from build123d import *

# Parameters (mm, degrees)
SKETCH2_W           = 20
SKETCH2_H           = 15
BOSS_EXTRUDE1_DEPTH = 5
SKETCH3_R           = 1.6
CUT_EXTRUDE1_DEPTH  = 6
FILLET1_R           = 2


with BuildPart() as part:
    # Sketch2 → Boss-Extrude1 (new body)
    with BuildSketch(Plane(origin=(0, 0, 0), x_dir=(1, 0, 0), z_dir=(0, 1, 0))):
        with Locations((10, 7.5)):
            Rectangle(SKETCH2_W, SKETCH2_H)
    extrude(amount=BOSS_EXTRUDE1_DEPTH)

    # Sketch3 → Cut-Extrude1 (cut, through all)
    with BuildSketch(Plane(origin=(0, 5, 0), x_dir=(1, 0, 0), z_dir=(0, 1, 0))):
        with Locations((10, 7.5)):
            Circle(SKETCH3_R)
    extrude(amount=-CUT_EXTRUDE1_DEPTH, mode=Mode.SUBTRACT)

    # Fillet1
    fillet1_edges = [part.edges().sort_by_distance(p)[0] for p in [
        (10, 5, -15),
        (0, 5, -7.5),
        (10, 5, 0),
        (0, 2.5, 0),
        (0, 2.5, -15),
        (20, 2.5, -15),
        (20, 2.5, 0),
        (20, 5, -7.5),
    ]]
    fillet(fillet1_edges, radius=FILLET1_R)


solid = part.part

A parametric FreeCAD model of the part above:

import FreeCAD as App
import Part
import Sketcher


def edges_at(feature, points):
    """Names of the edges that pass closest to the given points."""
    edges = feature.Shape.Edges
    near = lambda p: min(range(len(edges)), key=lambda i: edges[i].distToShape(Part.Vertex(*p))[0])
    return sorted({f"Edge{near(p) + 1}" for p in points})


def add_polygon(sketch, points):
    """Adds a closed chain of lines whose ends are joined by coincident constraints."""
    first, n = sketch.GeometryCount, len(points)
    for a, b in zip(points, points[1:] + points[:1]):
        sketch.addGeometry(Part.LineSegment(App.Vector(*a, 0), App.Vector(*b, 0)), False)
    for i in range(n):
        sketch.addConstraint(Sketcher.Constraint("Coincident", first + i, 2, first + (i + 1) % n, 1))

doc = App.newDocument("Part")
body = doc.addObject("PartDesign::Body", "Body")

# Sketch on XZ plane
sketch1 = body.newObject("Sketcher::SketchObject", "Sketch")
sketch1.AttachmentSupport = (doc.getObject("XZ_Plane"), [""])
sketch1.MapMode = "FlatFace"
add_polygon(sketch1, [(0, -15), (0, 0), (20, 0), (20, -15)])  # lines 0-3
sketch1.addConstraint([
    Sketcher.Constraint("Vertical", 0),
    Sketcher.Constraint("Horizontal", 1),
    Sketcher.Constraint("Vertical", 2),
    Sketcher.Constraint("Horizontal", 3),
    Sketcher.Constraint("Coincident", 0, 2, -1, 1),
    Sketcher.Constraint("DistanceX", 1, 1, 1, 2, 20.0),
    Sketcher.Constraint("DistanceY", 0, 1, 0, 2, 15.0),
])
pad1 = body.newObject("PartDesign::Pad", "Pad")
pad1.Profile = sketch1
pad1.Length = 5
pad1.Reversed = True

# Sketch on XZ plane
sketch2 = body.newObject("Sketcher::SketchObject", "Sketch001")
sketch2.AttachmentSupport = (doc.getObject("XZ_Plane"), [""])
sketch2.MapMode = "FlatFace"
sketch2.AttachmentOffset = App.Placement(App.Vector(0, 0, -5), App.Rotation())
sketch2.addGeometry(Part.Circle(App.Vector(10, -7.5, 0), App.Vector(0, 0, 1), 1.6), False)
sketch2.addConstraint([
    Sketcher.Constraint("Diameter", 0, 3.2),
    Sketcher.Constraint("DistanceX", -1, 1, 0, 3, 10.0),
    Sketcher.Constraint("DistanceY", 0, 3, -1, 1, 7.5),
])
pocket1 = body.newObject("PartDesign::Pocket", "Pocket")
pocket1.Profile = sketch2
pocket1.Type = "ThroughAll"
pocket1.Reversed = True
doc.recompute()

fillet = body.newObject("PartDesign::Fillet", "Fillet")
fillet.Base = (pocket1, edges_at(pocket1, [
    (10, 5, -15),
    (0, 5, -7.5),
    (10, 5, 0),
    (0, 2.5, 0),
    (0, 2.5, -15),
    (20, 2.5, -15),
    (20, 2.5, 0),
    (20, 5, -7.5),
]))
fillet.Radius = 2

doc.recompute()
